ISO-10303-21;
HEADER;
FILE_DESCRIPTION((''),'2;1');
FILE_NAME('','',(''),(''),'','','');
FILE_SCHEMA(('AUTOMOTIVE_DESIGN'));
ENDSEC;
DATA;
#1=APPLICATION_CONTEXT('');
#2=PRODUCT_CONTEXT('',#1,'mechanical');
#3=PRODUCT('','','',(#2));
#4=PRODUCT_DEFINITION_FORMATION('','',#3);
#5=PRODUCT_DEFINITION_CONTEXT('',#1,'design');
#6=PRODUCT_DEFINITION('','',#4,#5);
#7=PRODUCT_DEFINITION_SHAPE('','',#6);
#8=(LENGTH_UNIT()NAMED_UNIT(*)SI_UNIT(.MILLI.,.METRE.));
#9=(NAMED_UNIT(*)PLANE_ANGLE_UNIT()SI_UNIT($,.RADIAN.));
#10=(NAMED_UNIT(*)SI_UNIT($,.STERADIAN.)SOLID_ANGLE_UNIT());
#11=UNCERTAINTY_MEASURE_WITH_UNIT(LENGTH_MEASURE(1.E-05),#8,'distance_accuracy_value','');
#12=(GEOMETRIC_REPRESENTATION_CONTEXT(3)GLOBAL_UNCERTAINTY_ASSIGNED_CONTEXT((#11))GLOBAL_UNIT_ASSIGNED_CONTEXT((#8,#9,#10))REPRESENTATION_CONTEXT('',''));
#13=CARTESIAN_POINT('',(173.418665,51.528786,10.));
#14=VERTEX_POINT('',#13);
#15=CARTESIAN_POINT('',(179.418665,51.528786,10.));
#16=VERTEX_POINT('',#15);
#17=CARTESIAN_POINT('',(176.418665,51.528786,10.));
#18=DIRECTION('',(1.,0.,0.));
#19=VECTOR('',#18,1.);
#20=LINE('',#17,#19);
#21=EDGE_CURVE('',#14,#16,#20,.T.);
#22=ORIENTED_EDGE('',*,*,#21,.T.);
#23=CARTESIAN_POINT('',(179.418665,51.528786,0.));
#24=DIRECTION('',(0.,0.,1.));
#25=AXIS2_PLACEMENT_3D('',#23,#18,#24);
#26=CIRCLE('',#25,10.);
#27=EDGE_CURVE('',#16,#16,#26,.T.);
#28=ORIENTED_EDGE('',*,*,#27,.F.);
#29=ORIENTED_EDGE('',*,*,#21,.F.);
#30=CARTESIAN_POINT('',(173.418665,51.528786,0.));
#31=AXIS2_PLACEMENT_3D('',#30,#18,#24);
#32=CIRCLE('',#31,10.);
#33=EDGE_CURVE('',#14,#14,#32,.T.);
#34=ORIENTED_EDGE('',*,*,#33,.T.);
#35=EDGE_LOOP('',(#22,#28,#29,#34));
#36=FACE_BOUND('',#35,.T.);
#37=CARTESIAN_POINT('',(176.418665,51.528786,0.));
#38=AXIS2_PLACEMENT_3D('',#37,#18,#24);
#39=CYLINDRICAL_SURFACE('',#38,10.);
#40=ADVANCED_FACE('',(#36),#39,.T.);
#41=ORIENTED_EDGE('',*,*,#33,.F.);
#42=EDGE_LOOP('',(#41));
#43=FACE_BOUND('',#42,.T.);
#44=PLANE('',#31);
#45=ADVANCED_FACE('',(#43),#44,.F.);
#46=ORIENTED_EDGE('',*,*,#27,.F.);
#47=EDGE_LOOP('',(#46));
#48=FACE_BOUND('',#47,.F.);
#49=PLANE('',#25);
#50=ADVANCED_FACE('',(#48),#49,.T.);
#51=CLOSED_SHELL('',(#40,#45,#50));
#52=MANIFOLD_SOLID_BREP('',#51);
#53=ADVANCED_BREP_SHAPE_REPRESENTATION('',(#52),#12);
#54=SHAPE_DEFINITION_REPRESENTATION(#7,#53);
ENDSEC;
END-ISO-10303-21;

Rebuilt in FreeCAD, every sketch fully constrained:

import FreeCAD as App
import Part
import Sketcher
from FreeCAD import Vector
Q = App.Units.Quantity


def add_polygon(sketch, points):
    """Adds a closed chain of lines whose ends are joined by coincident constraints."""
    first, n = sketch.GeometryCount, len(points)
    for a, b in zip(points, points[1:] + points[:1]):
        sketch.addGeometry(Part.LineSegment(App.Vector(*a, 0), App.Vector(*b, 0)), False)
    for i in range(n):
        sketch.addConstraint(Sketcher.Constraint("Coincident", first + i, 2, first + (i + 1) % n, 1))

doc = App.newDocument("Part")
body = doc.addObject("PartDesign::Body", "Body")

# Sketch on XY plane
sketch1 = body.newObject("Sketcher::SketchObject", "Sketch")
sketch1.AttachmentSupport = (doc.getObject("XY_Plane"), [""])
sketch1.MapMode = "FlatFace"
add_polygon(sketch1, [(173, 62), (173, 52), (179, 52), (179, 62)])  # lines 0-3
sketch1.addGeometry(Part.LineSegment(Vector(173, 52, 0), Vector(179, 52, 0)), True)  # axis
sketch1.addConstraint(Sketcher.Constraint("Vertical", 0))
sketch1.addConstraint(Sketcher.Constraint("Horizontal", 1))
sketch1.addConstraint(Sketcher.Constraint("Vertical", 2))
sketch1.addConstraint(Sketcher.Constraint("Horizontal", 3))
sketch1.addConstraint(Sketcher.Constraint("Horizontal", 4))
sketch1.addConstraint(Sketcher.Constraint("Coincident", 4, 1, 0, 2))
sketch1.addConstraint(Sketcher.Constraint("Vertical", 2, 2, 4, 2))
sketch1.addConstraint(Sketcher.Constraint("DistanceX", 1, 1, 1, 2, Q("6 mm")))
sketch1.addConstraint(Sketcher.Constraint("DistanceY", 0, 2, 0, 1, Q("10 mm")))
sketch1.addConstraint(Sketcher.Constraint("DistanceX", -1, 1, 0, 2, Q("173.418665 mm")))
sketch1.addConstraint(Sketcher.Constraint("DistanceY", -1, 1, 0, 2, Q("51.528786 mm")))
revolution = body.newObject("PartDesign::Revolution", "Revolution")
revolution.Profile = sketch1
revolution.ReferenceAxis = (sketch1, ["Axis0"])
revolution.Angle = 360

doc.recompute()
